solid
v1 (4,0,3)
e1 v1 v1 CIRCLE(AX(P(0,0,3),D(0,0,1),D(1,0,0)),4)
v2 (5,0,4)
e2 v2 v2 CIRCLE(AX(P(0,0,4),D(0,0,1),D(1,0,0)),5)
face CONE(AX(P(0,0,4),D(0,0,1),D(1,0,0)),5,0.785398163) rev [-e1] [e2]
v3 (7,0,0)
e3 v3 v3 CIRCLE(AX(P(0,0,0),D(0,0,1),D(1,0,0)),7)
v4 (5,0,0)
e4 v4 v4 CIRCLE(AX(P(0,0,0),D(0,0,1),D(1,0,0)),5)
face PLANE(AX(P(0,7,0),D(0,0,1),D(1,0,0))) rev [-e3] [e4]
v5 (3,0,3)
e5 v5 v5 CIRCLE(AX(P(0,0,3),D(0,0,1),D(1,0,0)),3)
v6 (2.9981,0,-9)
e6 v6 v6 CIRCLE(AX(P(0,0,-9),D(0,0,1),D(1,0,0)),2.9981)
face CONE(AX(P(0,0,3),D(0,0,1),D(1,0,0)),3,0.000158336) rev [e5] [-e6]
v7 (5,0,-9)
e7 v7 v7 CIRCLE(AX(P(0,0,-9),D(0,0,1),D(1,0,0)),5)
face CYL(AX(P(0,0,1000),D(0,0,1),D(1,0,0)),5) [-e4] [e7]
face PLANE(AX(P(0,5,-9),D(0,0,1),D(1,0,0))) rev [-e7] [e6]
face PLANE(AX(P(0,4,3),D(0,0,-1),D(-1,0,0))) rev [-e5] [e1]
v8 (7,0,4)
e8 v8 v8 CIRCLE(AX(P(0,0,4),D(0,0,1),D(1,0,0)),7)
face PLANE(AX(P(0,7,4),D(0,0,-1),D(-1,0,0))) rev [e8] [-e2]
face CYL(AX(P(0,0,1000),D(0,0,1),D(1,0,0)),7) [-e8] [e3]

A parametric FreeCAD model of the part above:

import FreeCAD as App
import Part
import Sketcher

V = App.Vector
Q = App.Units.Quantity

doc = App.newDocument("Part")
params = doc.addObject("Spreadsheet::Sheet", "Params")
for row, (alias, value) in enumerate([
    ("sketch1_width", "2 mm"),
    ("sketch1_width2", "1 mm"),
    ("sketch1_height", "9 mm"),
    ("sketch1_height2", "4 mm"),
    ("sketch1_length", "12 mm"),
    ("revolution_angle", "360 deg"),
], start=1):
    params.set(f"A{row}", alias)
    params.set(f"B{row}", "=" + value)
    params.setAlias(f"B{row}", alias)

body = doc.addObject("PartDesign::Body", "Body")

sketch1 = doc.addObject("Sketcher::SketchObject", "Sketch")
body.addObject(sketch1)
sketch1.AttachmentSupport = (doc.YZ_Plane, [""])
sketch1.MapMode = "FlatFace"
sketch1.addGeometry(Part.LineSegment(V(7, 4, 0), V(5, 4, 0)), False)
sketch1.addGeometry(Part.LineSegment(V(5, 4, 0), V(4, 3, 0)), False)
sketch1.addGeometry(Part.LineSegment(V(4, 3, 0), V(3, 3, 0)), False)
sketch1.addGeometry(Part.LineSegment(V(3, 3, 0), V(3, -9, 0)), False)
sketch1.addGeometry(Part.LineSegment(V(3, -9, 0), V(5, -9, 0)), False)
sketch1.addGeometry(Part.LineSegment(V(5, -9, 0), V(5, 0, 0)), False)
sketch1.addGeometry(Part.LineSegment(V(5, 0, 0), V(7, 0, 0)), False)
sketch1.addGeometry(Part.LineSegment(V(7, 0, 0), V(7, 4, 0)), False)
sketch1.addConstraint(Sketcher.Constraint("Coincident", 0, 2, 1, 1))
sketch1.addConstraint(Sketcher.Constraint("Coincident", 1, 2, 2, 1))
sketch1.addConstraint(Sketcher.Constraint("Coincident", 2, 2, 3, 1))
sketch1.addConstraint(Sketcher.Constraint("Coincident", 3, 2, 4, 1))
sketch1.addConstraint(Sketcher.Constraint("Coincident", 4, 2, 5, 1))
sketch1.addConstraint(Sketcher.Constraint("Coincident", 5, 2, 6, 1))
sketch1.addConstraint(Sketcher.Constraint("Coincident", 6, 2, 7, 1))
sketch1.addConstraint(Sketcher.Constraint("Coincident", 7, 2, 0, 1))
sketch1.addConstraint(Sketcher.Constraint("Horizontal", 0))
sketch1.addConstraint(Sketcher.Constraint("Horizontal", 2))
sketch1.addConstraint(Sketcher.Constraint("Horizontal", 4))
sketch1.addConstraint(Sketcher.Constraint("Vertical", 5))
sketch1.addConstraint(Sketcher.Constraint("Horizontal", 6))
sketch1.addConstraint(Sketcher.Constraint("Vertical", 7))
sketch1.addConstraint(Sketcher.Constraint("PointOnObject", 5, 2, -1))
sketch1.addConstraint(Sketcher.Constraint("Vertical", 0, 2, 4, 2))
sketch1.addConstraint(Sketcher.Constraint("DistanceX", 0, 2, 0, 1, 2.0))
sketch1.addConstraint(Sketcher.Constraint("DistanceX", 2, 2, 2, 1, 1.0))
sketch1.addConstraint(Sketcher.Constraint("DistanceY", 5, 1, 5, 2, 9.0))
sketch1.addConstraint(Sketcher.Constraint("DistanceY", 7, 1, 7, 2, 4.0))
sketch1.addConstraint(Sketcher.Constraint("Angle", 1, Q("-135 deg")))
sketch1.addConstraint(Sketcher.Constraint("Distance", 3, 12.0))
sketch1.addConstraint(Sketcher.Constraint("DistanceX", -1, 1, 0, 2, 5.0))
sketch1.addConstraint(Sketcher.Constraint("DistanceX", 4, 1, 4, 2, 2.0019))
sketch1.setExpression("Constraints[16]", "Params.sketch1_width")
sketch1.setExpression("Constraints[17]", "Params.sketch1_width2")
sketch1.setExpression("Constraints[18]", "Params.sketch1_height")
sketch1.setExpression("Constraints[19]", "Params.sketch1_height2")
sketch1.setExpression("Constraints[21]", "Params.sketch1_length")
revolution = doc.addObject("PartDesign::Revolution", "Revolution")
body.addObject(revolution)
revolution.Profile = sketch1
revolution.ReferenceAxis = (sketch1, ["V_Axis"])
revolution.setExpression("Angle", "Params.revolution_angle")

doc.recompute()
